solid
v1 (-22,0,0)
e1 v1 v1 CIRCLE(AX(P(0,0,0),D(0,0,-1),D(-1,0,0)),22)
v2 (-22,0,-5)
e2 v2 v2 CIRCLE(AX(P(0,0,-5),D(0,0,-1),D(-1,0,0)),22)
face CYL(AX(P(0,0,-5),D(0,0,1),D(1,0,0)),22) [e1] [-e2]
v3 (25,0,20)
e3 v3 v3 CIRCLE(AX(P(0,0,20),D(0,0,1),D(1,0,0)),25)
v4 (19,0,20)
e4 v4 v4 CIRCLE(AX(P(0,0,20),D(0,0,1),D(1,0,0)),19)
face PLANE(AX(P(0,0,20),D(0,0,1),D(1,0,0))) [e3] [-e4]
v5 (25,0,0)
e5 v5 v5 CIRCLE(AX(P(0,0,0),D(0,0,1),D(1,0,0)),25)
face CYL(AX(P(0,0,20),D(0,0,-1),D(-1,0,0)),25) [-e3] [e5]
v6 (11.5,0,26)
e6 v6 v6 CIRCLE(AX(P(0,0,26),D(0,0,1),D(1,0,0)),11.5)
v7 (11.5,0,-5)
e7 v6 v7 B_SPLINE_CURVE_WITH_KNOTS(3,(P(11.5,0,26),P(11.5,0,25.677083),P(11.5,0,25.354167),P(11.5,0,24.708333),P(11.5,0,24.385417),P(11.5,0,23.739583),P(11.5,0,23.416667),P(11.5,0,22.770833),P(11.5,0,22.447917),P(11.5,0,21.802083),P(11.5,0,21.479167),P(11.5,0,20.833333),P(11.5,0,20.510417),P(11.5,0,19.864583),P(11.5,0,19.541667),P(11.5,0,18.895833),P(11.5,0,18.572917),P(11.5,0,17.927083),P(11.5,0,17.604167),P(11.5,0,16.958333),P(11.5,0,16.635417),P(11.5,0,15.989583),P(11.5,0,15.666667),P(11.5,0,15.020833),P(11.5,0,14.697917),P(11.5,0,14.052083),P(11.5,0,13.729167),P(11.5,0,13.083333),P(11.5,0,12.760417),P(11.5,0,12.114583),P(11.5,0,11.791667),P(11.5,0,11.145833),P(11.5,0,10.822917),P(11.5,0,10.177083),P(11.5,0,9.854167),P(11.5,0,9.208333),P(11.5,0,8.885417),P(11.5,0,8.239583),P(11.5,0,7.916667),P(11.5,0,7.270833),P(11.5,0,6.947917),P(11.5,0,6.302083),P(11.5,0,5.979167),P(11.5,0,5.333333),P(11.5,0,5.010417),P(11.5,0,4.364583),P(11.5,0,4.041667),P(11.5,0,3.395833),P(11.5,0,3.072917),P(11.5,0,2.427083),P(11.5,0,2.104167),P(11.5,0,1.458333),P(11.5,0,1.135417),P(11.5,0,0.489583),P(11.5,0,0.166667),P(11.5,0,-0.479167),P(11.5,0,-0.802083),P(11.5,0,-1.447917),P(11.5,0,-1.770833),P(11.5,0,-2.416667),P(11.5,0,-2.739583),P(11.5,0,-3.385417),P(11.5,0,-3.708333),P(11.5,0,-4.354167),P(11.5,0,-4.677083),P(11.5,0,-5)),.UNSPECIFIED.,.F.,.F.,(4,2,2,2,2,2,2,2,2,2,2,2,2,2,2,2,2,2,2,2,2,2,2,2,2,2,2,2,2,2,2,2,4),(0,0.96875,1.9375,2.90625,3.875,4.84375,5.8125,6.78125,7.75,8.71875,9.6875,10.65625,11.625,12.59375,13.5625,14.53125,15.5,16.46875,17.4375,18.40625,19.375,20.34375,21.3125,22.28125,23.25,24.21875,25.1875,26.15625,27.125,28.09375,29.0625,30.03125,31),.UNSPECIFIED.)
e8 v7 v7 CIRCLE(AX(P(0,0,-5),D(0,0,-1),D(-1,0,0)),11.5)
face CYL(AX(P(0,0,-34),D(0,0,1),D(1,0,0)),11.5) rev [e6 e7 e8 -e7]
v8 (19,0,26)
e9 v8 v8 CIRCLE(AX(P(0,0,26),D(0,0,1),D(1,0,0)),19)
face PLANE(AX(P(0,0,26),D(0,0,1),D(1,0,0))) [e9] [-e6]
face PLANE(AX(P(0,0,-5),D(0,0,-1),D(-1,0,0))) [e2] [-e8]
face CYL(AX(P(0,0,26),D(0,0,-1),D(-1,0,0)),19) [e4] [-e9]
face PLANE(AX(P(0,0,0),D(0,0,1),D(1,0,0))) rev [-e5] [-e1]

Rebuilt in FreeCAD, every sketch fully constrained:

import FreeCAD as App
import Part
import Sketcher

V = App.Vector
Q = App.Units.Quantity

doc = App.newDocument("Part")
params = doc.addObject("Spreadsheet::Sheet", "Params")
for row, (alias, value) in enumerate([
    ("sketch1_diameter", "50 mm"),
    ("pad1_length", "20 mm"),
    ("sketch2_diameter", "38 mm"),
    ("pad2_length", "6 mm"),
    ("sketch3_diameter", "23 mm"),
    ("pocket1_length", "60 mm"),
    ("sketch4_diameter", "44 mm"),
    ("sketch4_diameter2", "23 mm"),
    ("pad3_length", "5 mm"),
], start=1):
    params.set(f"A{row}", alias)
    params.set(f"B{row}", "=" + value)
    params.setAlias(f"B{row}", alias)

body = doc.addObject("PartDesign::Body", "Body")

# Sketch on XY plane
sketch1 = doc.addObject("Sketcher::SketchObject", "Sketch")
body.addObject(sketch1)
sketch1.AttachmentSupport = (doc.XY_Plane, [""])
sketch1.MapMode = "FlatFace"
sketch1.addGeometry(Part.Circle(V(0, 0, 0), V(0, 0, 1), 25), False)
sketch1.addConstraint(Sketcher.Constraint("Coincident", 0, 3, -1, 1))
sketch1.addConstraint(Sketcher.Constraint("Diameter", 0, Q("50 mm")))
sketch1.setExpression("Constraints[1]", "Params.sketch1_diameter")
pad1 = doc.addObject("PartDesign::Pad", "Pad")
body.addObject(pad1)
pad1.Profile = sketch1
pad1.setExpression("Length", "Params.pad1_length")

# Sketch on XY plane
sketch2 = doc.addObject("Sketcher::SketchObject", "Sketch001")
body.addObject(sketch2)
sketch2.AttachmentSupport = (doc.XY_Plane, [""])
sketch2.MapMode = "FlatFace"
sketch2.AttachmentOffset = App.Placement(V(0, 0, 20), App.Rotation())
sketch2.addGeometry(Part.Circle(V(0, 0, 0), V(0, 0, 1), 19), False)
sketch2.addConstraint(Sketcher.Constraint("Coincident", 0, 3, -1, 1))
sketch2.addConstraint(Sketcher.Constraint("Diameter", 0, Q("38 mm")))
sketch2.setExpression("Constraints[1]", "Params.sketch2_diameter")
pad2 = doc.addObject("PartDesign::Pad", "Pad001")
body.addObject(pad2)
pad2.Profile = sketch2
pad2.setExpression("Length", "Params.pad2_length")

# Sketch on XY plane
sketch3 = doc.addObject("Sketcher::SketchObject", "Sketch002")
body.addObject(sketch3)
sketch3.AttachmentSupport = (doc.XY_Plane, [""])
sketch3.MapMode = "FlatFace"
sketch3.AttachmentOffset = App.Placement(V(0, 0, 26), App.Rotation())
sketch3.addGeometry(Part.Circle(V(0, 0, 0), V(0, 0, 1), 12), False)
sketch3.addConstraint(Sketcher.Constraint("Coincident", 0, 3, -1, 1))
sketch3.addConstraint(Sketcher.Constraint("Diameter", 0, Q("23 mm")))
sketch3.setExpression("Constraints[1]", "Params.sketch3_diameter")
pocket1 = doc.addObject("PartDesign::Pocket", "Pocket")
body.addObject(pocket1)
pocket1.Profile = sketch3
pocket1.setExpression("Length", "Params.pocket1_length")

# Sketch on XY plane
sketch4 = doc.addObject("Sketcher::SketchObject", "Sketch003")
body.addObject(sketch4)
sketch4.AttachmentSupport = (doc.XY_Plane, [""])
sketch4.MapMode = "FlatFace"
sketch4.addGeometry(Part.Circle(V(0, 0, 0), V(0, 0, 1), 22), False)
sketch4.addGeometry(Part.Circle(V(0, 0, 0), V(0, 0, 1), 12), False)
sketch4.addConstraint(Sketcher.Constraint("Coincident", 0, 3, -1, 1))
sketch4.addConstraint(Sketcher.Constraint("Coincident", 1, 3, -1, 1))
sketch4.addConstraint(Sketcher.Constraint("Diameter", 0, Q("44 mm")))
sketch4.addConstraint(Sketcher.Constraint("Diameter", 1, Q("23 mm")))
sketch4.setExpression("Constraints[2]", "Params.sketch4_diameter")
sketch4.setExpression("Constraints[3]", "Params.sketch4_diameter2")
pad3 = doc.addObject("PartDesign::Pad", "Pad002")
body.addObject(pad3)
pad3.Profile = sketch4
pad3.setExpression("Length", "Params.pad3_length")
pad3.Reversed = True

doc.recompute()
